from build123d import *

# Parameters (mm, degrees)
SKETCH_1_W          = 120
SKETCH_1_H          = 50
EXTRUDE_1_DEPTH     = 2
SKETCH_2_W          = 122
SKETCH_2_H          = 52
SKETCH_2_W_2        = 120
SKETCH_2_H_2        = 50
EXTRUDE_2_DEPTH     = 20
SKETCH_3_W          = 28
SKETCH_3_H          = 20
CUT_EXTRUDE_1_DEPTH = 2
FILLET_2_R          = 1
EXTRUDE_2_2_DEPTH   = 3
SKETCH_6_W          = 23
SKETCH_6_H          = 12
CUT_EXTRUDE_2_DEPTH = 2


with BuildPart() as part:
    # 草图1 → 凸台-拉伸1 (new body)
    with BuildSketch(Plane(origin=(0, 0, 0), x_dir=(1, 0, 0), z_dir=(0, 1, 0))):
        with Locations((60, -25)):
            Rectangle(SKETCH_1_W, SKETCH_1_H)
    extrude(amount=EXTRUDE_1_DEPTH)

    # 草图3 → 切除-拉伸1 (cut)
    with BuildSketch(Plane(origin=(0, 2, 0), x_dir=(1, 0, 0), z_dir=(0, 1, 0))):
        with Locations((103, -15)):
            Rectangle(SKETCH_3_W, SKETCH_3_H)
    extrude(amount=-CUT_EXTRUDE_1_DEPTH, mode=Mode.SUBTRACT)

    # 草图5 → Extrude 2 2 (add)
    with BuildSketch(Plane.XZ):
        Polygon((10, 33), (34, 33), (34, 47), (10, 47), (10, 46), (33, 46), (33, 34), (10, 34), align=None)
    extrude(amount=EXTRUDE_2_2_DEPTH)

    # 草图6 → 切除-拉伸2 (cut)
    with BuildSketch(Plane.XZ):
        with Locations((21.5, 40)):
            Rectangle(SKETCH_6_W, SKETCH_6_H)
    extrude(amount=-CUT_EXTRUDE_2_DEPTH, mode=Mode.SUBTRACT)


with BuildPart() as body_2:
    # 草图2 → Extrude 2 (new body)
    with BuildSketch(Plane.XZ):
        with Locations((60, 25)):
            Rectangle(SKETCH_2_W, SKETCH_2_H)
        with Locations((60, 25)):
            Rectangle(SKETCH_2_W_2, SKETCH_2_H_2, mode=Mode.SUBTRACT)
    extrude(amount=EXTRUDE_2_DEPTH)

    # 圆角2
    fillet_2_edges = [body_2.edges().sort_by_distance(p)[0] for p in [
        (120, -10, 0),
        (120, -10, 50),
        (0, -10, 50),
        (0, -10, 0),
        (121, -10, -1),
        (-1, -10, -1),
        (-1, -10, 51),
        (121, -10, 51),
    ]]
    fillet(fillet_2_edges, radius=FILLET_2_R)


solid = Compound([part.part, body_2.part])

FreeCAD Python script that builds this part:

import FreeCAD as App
import Part
import Sketcher


def edges_at(feature, points):
    """Names of the edges that pass closest to the given points."""
    edges = feature.Shape.Edges
    near = lambda p: min(range(len(edges)), key=lambda i: edges[i].distToShape(Part.Vertex(*p))[0])
    return sorted({f"Edge{near(p) + 1}" for p in points})


def add_polygon(sketch, points):
    """Adds a closed chain of lines whose ends are joined by coincident constraints."""
    first, n = sketch.GeometryCount, len(points)
    for a, b in zip(points, points[1:] + points[:1]):
        sketch.addGeometry(Part.LineSegment(App.Vector(*a, 0), App.Vector(*b, 0)), False)
    for i in range(n):
        sketch.addConstraint(Sketcher.Constraint("Coincident", first + i, 2, first + (i + 1) % n, 1))

doc = App.newDocument("Part")
body = doc.addObject("PartDesign::Body", "Body")

# Sketch on XZ plane
sketch1 = body.newObject("Sketcher::SketchObject", "Sketch")
sketch1.AttachmentSupport = (doc.getObject("XZ_Plane"), [""])
sketch1.MapMode = "FlatFace"
add_polygon(sketch1, [(0, 0), (0, 50), (120, 50), (120, 0)])  # lines 0-3
sketch1.addConstraint([
    Sketcher.Constraint("Vertical", 0),
    Sketcher.Constraint("Horizontal", 1),
    Sketcher.Constraint("Vertical", 2),
    Sketcher.Constraint("Horizontal", 3),
    Sketcher.Constraint("Coincident", 3, 2, -1, 1),
    Sketcher.Constraint("DistanceX", 1, 1, 1, 2, 120.0),
    Sketcher.Constraint("DistanceY", 0, 1, 0, 2, 50.0),
])
pad1 = body.newObject("PartDesign::Pad", "Pad")
pad1.Profile = sketch1
pad1.Length = 2
pad1.Reversed = True

# Sketch on XZ plane
sketch2 = body.newObject("Sketcher::SketchObject", "Sketch001")
sketch2.AttachmentSupport = (doc.getObject("XZ_Plane"), [""])
sketch2.MapMode = "FlatFace"
sketch2.AttachmentOffset = App.Placement(App.Vector(0, 0, -2), App.Rotation())
add_polygon(sketch2, [(89, 5), (89, 25), (117, 25), (117, 5)])  # lines 0-3
sketch2.addConstraint([
    Sketcher.Constraint("Vertical", 0),
    Sketcher.Constraint("Horizontal", 1),
    Sketcher.Constraint("Vertical", 2),
    Sketcher.Constraint("Horizontal", 3),
    Sketcher.Constraint("DistanceX", 1, 1, 1, 2, 28.0),
    Sketcher.Constraint("DistanceY", 0, 1, 0, 2, 20.0),
    Sketcher.Constraint("DistanceX", -1, 1, 0, 2, 89.0),
    Sketcher.Constraint("DistanceY", -1, 1, 0, 2, 25.0),
])
pocket1 = body.newObject("PartDesign::Pocket", "Pocket")
pocket1.Profile = sketch2
pocket1.Length = 2
pocket1.Reversed = True

# Sketch on XZ plane
sketch3 = body.newObject("Sketcher::SketchObject", "Sketch002")
sketch3.AttachmentSupport = (doc.getObject("XZ_Plane"), [""])
sketch3.MapMode = "FlatFace"
add_polygon(sketch3, [(10, 33), (34, 33), (34, 47), (10, 47), (10, 46), (33, 46), (33, 34), (10, 34)])  # lines 0-7
sketch3.addConstraint([
    Sketcher.Constraint("Horizontal", 0),
    Sketcher.Constraint("Vertical", 1),
    Sketcher.Constraint("Horizontal", 2),
    Sketcher.Constraint("Vertical", 3),
    Sketcher.Constraint("Horizontal", 4),
    Sketcher.Constraint("Vertical", 5),
    Sketcher.Constraint("Horizontal", 6),
    Sketcher.Constraint("Vertical", 7),
    Sketcher.Constraint("Vertical", 3, 2, 6, 2),
    Sketcher.Constraint("Equal", 3, 7),
    Sketcher.Constraint("DistanceX", 0, 1, 0, 2, 24.0),
    Sketcher.Constraint("DistanceX", 4, 1, 4, 2, 23.0),
    Sketcher.Constraint("DistanceY", 1, 1, 1, 2, 14.0),
    Sketcher.Constraint("DistanceY", 3, 2, 3, 1, 1.0),
    Sketcher.Constraint("DistanceX", -1, 1, 0, 2, 34.0),
    Sketcher.Constraint("DistanceY", -1, 1, 0, 2, 33.0),
])
pad2 = body.newObject("PartDesign::Pad", "Pad001")
pad2.Profile = sketch3
pad2.Length = 3

# Sketch on XZ plane
sketch4 = body.newObject("Sketcher::SketchObject", "Sketch003")
sketch4.AttachmentSupport = (doc.getObject("XZ_Plane"), [""])
sketch4.MapMode = "FlatFace"
add_polygon(sketch4, [(10, 46), (10, 34), (33, 34), (33, 46)])  # lines 0-3
sketch4.addConstraint([
    Sketcher.Constraint("Vertical", 0),
    Sketcher.Constraint("Horizontal", 1),
    Sketcher.Constraint("Vertical", 2),
    Sketcher.Constraint("Horizontal", 3),
    Sketcher.Constraint("DistanceX", 1, 1, 1, 2, 23.0),
    Sketcher.Constraint("DistanceY", 0, 2, 0, 1, 12.0),
    Sketcher.Constraint("DistanceX", -1, 1, 0, 2, 10.0),
    Sketcher.Constraint("DistanceY", -1, 1, 0, 2, 34.0),
])
pocket2 = body.newObject("PartDesign::Pocket", "Pocket001")
pocket2.Profile = sketch4
pocket2.Length = 2
body2 = doc.addObject("PartDesign::Body", "Body001")

# Sketch on XZ plane
sketch5 = body2.newObject("Sketcher::SketchObject", "Sketch004")
sketch5.AttachmentSupport = (doc.getObject("XZ_Plane001"), [""])
sketch5.MapMode = "FlatFace"
add_polygon(sketch5, [(-1, 51), (-1, -1), (121, -1), (121, 51)])  # lines 0-3
add_polygon(sketch5, [(120, 0), (0, 0), (0, 50), (120, 50)])  # lines 4-7
sketch5.addConstraint([
    Sketcher.Constraint("Vertical", 0),
    Sketcher.Constraint("Horizontal", 1),
    Sketcher.Constraint("Vertical", 2),
    Sketcher.Constraint("Horizontal", 3),
    Sketcher.Constraint("Horizontal", 4),
    Sketcher.Constraint("Vertical", 5),
    Sketcher.Constraint("Horizontal", 6),
    Sketcher.Constraint("Vertical", 7),
    Sketcher.Constraint("Coincident", 4, 2, -1, 1),
    Sketcher.Constraint("DistanceX", 1, 1, 1, 2, 122.0),
    Sketcher.Constraint("DistanceX", 4, 2, 4, 1, 120.0),
    Sketcher.Constraint("DistanceY", 0, 2, 0, 1, 52.0),
    Sketcher.Constraint("DistanceY", 5, 1, 5, 2, 50.0),
    Sketcher.Constraint("DistanceX", 0, 2, -1, 1, 1.0),
    Sketcher.Constraint("DistanceY", 0, 2, -1, 1, 1.0),
])
pad3 = body2.newObject("PartDesign::Pad", "Pad002")
pad3.Profile = sketch5
pad3.Length = 20
doc.recompute()

fillet = body2.newObject("PartDesign::Fillet", "Fillet")
fillet.Base = (pad3, edges_at(pad3, [
    (120, -10, 0),
    (120, -10, 50),
    (0, -10, 50),
    (0, -10, 0),
    (121, -10, -1),
    (-1, -10, -1),
    (-1, -10, 51),
    (121, -10, 51),
]))
fillet.Radius = 1

doc.recompute()
